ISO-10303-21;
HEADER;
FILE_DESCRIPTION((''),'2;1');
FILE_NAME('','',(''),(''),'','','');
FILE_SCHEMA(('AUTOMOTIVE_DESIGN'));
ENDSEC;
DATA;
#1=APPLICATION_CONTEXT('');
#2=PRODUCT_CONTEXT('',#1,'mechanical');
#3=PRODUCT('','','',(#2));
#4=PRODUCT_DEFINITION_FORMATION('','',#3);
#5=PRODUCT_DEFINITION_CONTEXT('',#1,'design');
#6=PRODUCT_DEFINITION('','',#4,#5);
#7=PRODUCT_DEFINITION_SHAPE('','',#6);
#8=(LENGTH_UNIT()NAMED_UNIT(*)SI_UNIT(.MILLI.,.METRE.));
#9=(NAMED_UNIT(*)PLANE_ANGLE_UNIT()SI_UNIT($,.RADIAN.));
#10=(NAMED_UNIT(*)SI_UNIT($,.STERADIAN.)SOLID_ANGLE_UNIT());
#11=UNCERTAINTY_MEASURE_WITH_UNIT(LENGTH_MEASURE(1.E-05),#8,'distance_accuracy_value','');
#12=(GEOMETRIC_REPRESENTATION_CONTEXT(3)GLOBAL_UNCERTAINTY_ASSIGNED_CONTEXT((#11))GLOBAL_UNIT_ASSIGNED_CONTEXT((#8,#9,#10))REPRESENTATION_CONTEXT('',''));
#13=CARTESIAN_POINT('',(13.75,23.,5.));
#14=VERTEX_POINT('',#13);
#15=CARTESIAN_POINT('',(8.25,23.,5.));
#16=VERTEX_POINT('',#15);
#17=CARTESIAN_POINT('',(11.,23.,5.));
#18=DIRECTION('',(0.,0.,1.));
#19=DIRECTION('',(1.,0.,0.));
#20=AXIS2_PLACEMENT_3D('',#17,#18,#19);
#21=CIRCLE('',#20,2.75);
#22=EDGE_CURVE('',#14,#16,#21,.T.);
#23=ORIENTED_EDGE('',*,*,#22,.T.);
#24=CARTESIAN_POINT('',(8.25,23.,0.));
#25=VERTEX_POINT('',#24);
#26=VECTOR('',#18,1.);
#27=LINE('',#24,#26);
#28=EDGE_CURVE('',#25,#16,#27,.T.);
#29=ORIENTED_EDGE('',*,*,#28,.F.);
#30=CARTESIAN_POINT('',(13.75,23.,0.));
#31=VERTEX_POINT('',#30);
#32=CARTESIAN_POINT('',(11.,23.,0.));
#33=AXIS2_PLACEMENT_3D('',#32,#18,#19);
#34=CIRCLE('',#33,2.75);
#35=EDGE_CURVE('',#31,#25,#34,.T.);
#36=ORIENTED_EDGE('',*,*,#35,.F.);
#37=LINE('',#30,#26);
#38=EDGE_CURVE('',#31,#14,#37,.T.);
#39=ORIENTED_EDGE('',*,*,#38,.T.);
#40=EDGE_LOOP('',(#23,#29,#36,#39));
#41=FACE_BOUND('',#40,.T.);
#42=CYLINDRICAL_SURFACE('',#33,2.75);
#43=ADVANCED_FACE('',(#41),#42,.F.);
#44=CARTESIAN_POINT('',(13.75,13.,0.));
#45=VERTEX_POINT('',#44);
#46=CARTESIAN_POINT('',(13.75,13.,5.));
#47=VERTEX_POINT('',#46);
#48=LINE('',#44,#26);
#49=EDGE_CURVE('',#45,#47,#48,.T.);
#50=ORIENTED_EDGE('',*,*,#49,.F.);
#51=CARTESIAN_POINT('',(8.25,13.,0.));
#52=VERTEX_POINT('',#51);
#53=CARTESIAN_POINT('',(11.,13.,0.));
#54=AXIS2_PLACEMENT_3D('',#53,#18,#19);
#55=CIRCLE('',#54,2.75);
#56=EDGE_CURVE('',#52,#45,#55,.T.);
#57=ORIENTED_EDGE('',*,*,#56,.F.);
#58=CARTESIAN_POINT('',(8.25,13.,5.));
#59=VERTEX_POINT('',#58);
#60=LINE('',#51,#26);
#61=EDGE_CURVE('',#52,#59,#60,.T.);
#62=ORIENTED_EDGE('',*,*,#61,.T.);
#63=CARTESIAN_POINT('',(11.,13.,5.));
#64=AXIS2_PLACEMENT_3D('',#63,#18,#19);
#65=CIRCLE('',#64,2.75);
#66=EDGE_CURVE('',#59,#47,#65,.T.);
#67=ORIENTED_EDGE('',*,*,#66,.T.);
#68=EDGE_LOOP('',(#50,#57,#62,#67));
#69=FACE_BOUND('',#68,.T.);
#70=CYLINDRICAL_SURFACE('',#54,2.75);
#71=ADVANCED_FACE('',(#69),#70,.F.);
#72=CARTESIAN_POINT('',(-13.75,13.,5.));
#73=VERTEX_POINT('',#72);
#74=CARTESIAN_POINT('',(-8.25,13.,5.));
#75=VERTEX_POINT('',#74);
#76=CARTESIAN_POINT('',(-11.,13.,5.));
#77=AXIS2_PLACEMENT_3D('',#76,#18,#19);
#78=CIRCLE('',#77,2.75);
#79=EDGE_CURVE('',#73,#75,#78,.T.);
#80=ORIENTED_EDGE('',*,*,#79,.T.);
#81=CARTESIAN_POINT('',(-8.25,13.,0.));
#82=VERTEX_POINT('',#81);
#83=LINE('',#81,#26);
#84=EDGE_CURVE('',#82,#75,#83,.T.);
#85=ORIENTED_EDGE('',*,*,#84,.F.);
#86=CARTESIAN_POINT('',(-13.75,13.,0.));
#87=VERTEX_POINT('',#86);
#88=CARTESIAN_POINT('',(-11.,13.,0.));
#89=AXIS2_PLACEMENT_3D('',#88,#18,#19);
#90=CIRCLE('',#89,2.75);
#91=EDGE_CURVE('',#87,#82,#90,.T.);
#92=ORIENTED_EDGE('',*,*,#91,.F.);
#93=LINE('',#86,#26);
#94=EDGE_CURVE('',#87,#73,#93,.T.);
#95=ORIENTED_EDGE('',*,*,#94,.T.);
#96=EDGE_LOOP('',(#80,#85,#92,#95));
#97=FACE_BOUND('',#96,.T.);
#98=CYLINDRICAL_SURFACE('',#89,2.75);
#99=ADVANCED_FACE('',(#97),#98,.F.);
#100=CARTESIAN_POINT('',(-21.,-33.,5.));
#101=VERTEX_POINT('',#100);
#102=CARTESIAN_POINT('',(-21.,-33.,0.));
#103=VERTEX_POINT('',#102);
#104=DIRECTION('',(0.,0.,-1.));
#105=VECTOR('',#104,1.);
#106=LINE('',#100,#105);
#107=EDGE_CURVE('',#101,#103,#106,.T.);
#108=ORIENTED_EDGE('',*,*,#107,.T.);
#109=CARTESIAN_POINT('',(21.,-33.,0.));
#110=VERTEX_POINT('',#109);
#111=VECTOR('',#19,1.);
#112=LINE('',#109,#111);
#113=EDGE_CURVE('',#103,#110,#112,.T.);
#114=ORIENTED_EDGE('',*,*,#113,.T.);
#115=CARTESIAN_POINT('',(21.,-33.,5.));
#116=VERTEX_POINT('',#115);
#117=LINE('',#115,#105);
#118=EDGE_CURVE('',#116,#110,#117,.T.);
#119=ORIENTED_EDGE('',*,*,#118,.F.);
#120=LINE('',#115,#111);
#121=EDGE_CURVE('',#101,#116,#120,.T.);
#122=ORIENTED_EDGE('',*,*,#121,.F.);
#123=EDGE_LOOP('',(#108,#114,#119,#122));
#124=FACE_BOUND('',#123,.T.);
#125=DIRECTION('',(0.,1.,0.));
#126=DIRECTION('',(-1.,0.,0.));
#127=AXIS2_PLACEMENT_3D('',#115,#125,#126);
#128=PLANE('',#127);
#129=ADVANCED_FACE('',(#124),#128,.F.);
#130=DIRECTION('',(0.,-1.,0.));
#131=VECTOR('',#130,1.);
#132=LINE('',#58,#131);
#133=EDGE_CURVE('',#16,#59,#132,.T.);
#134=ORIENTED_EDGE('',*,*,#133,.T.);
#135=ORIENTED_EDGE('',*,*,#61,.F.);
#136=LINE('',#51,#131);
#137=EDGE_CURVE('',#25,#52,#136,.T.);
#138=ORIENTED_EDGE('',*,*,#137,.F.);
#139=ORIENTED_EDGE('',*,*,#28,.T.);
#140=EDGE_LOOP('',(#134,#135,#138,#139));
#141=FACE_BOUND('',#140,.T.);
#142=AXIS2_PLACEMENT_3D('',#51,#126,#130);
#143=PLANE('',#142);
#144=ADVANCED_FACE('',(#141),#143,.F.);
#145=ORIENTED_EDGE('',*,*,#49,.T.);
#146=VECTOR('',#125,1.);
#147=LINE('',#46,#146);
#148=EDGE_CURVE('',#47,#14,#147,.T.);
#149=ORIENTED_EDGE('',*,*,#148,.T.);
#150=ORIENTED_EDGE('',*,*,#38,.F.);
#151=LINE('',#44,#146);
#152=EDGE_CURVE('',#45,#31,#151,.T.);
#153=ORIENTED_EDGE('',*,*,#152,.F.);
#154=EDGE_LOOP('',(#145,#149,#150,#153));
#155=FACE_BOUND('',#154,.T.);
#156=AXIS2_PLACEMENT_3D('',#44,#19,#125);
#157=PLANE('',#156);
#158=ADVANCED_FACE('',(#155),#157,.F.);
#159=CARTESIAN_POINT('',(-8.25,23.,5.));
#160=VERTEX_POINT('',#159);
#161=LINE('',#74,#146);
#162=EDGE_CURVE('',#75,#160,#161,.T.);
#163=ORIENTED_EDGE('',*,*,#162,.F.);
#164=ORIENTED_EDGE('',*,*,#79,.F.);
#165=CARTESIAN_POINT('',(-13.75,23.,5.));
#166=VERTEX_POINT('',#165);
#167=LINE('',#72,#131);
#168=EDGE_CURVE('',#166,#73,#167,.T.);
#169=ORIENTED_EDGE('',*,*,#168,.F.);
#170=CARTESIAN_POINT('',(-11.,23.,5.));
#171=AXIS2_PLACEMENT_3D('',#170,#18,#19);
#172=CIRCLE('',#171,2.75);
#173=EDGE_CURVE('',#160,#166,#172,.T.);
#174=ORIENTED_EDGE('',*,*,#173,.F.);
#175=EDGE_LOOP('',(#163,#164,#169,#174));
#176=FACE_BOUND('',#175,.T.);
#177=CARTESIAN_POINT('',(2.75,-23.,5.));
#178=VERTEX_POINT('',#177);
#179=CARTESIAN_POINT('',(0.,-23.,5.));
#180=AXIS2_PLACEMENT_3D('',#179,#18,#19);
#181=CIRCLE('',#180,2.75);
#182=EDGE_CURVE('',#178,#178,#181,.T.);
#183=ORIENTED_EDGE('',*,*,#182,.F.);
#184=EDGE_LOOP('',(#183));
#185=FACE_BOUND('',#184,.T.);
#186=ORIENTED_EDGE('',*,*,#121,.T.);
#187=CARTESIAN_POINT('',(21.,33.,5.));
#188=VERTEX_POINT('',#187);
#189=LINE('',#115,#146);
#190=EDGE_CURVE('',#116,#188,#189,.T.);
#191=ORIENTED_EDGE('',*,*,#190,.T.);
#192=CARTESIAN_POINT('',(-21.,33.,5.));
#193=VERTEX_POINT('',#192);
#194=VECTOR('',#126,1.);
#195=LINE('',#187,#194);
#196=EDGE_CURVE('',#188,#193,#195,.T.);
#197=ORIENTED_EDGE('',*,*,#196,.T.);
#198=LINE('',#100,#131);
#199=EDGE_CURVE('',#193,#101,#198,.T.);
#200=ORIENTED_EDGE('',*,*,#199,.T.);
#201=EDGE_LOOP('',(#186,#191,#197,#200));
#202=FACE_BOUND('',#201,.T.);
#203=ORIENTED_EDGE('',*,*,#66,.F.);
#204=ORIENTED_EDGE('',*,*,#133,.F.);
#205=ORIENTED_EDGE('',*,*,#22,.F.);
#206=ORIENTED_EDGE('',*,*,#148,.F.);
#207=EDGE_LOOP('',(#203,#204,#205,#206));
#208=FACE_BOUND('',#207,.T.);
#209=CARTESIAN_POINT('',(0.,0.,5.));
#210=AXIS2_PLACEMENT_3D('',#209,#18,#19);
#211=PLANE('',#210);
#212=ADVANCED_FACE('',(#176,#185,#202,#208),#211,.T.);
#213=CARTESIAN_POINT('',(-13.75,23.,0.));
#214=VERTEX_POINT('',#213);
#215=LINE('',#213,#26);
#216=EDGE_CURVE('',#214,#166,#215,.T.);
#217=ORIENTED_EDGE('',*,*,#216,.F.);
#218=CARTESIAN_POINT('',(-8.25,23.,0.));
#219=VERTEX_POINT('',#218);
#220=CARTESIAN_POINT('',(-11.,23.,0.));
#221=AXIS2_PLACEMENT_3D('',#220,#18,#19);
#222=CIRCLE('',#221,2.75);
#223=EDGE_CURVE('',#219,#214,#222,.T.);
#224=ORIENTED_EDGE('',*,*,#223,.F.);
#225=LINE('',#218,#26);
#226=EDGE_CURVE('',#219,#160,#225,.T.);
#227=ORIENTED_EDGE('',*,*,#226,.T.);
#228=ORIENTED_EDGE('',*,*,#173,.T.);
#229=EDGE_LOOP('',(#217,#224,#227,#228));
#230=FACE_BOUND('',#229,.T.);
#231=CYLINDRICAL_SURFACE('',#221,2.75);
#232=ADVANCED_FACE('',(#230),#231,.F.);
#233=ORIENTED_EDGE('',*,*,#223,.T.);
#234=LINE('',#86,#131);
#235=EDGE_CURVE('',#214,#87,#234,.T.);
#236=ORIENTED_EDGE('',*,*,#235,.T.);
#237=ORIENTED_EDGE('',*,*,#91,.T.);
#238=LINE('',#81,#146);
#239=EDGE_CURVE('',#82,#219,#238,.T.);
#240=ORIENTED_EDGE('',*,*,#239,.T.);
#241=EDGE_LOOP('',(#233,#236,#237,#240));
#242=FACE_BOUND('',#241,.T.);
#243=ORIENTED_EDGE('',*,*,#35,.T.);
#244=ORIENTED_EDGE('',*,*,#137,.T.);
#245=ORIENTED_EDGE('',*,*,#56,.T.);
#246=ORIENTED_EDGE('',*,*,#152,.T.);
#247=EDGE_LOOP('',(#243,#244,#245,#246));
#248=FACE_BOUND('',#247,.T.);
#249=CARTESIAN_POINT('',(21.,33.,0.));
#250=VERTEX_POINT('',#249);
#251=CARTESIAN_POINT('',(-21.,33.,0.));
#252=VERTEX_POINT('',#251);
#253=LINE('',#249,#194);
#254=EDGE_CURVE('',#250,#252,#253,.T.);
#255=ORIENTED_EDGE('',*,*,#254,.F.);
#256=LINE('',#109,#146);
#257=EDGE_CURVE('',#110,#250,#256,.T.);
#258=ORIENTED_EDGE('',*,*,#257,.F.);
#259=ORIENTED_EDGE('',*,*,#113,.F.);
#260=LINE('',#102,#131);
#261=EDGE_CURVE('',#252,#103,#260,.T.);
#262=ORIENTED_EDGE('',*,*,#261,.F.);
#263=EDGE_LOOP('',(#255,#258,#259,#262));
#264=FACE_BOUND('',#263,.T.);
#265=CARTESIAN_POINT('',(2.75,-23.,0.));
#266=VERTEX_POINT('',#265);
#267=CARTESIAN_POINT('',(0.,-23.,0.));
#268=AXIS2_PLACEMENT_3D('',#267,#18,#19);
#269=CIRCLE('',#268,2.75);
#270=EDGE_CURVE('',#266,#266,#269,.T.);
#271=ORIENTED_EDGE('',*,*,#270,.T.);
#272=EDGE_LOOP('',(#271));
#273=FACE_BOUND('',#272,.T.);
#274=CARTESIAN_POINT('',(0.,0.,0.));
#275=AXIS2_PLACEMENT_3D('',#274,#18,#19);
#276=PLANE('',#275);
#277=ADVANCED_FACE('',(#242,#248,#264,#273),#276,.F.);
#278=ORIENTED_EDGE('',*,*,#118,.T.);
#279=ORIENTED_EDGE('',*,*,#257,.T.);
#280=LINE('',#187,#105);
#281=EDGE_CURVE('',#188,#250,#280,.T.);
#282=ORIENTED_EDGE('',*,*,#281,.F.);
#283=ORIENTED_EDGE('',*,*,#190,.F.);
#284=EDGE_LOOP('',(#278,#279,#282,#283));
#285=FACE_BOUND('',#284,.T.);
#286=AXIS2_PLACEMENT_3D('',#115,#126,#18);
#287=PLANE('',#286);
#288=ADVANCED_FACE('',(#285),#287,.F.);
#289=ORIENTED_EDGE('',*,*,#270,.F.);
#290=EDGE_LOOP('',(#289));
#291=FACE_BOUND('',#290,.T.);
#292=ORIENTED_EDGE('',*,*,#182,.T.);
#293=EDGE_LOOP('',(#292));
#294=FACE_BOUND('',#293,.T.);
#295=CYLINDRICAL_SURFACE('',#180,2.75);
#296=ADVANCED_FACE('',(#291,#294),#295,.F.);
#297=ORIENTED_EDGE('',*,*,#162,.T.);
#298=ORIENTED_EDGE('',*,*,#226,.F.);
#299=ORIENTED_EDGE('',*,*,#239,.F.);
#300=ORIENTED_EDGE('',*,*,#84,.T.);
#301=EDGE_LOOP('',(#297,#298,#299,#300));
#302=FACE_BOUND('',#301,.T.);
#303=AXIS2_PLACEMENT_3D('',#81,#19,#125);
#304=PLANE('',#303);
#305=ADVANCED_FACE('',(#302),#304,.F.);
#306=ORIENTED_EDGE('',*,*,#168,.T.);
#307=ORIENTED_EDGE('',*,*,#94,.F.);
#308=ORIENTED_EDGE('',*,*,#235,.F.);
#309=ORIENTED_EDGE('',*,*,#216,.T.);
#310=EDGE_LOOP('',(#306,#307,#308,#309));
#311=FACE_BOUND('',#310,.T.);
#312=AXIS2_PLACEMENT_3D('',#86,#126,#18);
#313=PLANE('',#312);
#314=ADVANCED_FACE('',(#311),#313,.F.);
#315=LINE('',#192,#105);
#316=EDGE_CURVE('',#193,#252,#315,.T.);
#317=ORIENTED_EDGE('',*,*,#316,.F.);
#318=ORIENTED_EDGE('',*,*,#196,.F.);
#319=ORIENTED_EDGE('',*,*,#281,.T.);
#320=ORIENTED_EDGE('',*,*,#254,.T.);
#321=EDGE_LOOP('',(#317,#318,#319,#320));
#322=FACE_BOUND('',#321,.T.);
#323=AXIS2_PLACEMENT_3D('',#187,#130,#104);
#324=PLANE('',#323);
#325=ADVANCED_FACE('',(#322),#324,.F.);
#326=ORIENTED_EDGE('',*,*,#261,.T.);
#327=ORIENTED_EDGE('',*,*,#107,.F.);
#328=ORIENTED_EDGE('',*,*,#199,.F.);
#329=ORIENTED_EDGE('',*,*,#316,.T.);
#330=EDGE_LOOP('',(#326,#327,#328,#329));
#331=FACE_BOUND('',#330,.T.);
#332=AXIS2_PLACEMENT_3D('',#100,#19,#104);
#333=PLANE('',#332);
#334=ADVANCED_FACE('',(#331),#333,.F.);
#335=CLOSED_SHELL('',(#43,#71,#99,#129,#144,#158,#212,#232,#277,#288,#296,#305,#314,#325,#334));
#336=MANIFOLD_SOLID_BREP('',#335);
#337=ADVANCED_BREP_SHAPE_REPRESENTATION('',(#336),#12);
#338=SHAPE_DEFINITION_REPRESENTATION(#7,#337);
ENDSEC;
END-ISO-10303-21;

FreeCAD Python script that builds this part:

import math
import FreeCAD as App
import Part
import Sketcher
from FreeCAD import Vector
Q = App.Units.Quantity


def add_polygon(sketch, points):
    """Adds a closed chain of lines whose ends are joined by coincident constraints."""
    first, n = sketch.GeometryCount, len(points)
    for a, b in zip(points, points[1:] + points[:1]):
        sketch.addGeometry(Part.LineSegment(App.Vector(*a, 0), App.Vector(*b, 0)), False)
    for i in range(n):
        sketch.addConstraint(Sketcher.Constraint("Coincident", first + i, 2, first + (i + 1) % n, 1))

doc = App.newDocument("Part")
body = doc.addObject("PartDesign::Body", "Body")

# Sketch on XY plane
sketch1 = body.newObject("Sketcher::SketchObject", "Sketch")
sketch1.AttachmentSupport = (doc.getObject("XY_Plane"), [""])
sketch1.MapMode = "FlatFace"
add_polygon(sketch1, [(-21, 33), (-21, -33), (21, -33), (21, 33)])  # lines 0-3
sketch1.addConstraint([
    Sketcher.Constraint("Vertical", 0),
    Sketcher.Constraint("Horizontal", 1),
    Sketcher.Constraint("Vertical", 2),
    Sketcher.Constraint("Horizontal", 3),
    Sketcher.Constraint("Symmetric", 0, 2, 2, 2, -1, 1),
    Sketcher.Constraint("DistanceX", 1, 1, 1, 2, Q("42 mm")),
    Sketcher.Constraint("DistanceY", 0, 2, 0, 1, Q("66 mm")),
])
pad1 = body.newObject("PartDesign::Pad", "Pad")
pad1.Profile = sketch1
pad1.Length = 5

# Sketch on XY plane
sketch2 = body.newObject("Sketcher::SketchObject", "Sketch001")
sketch2.AttachmentSupport = (doc.getObject("XY_Plane"), [""])
sketch2.MapMode = "FlatFace"
sketch2.AttachmentOffset = App.Placement(Vector(0, 0, 5), App.Rotation())
sketch2.addGeometry([
    Part.Circle(Vector(11, 18, 0), Vector(0, 0, 1), 2.8),
    Part.Circle(Vector(-11, 18, 0), Vector(0, 0, 1), 2.8),
    Part.Circle(Vector(0, -23, 0), Vector(0, 0, 1), 2.8),
], False)
sketch2.addConstraint([
    Sketcher.Constraint("Equal", 0, 1),
    Sketcher.Constraint("Equal", 1, 2),
    Sketcher.Constraint("Symmetric", 0, 3, 1, 3, -2),
    Sketcher.Constraint("PointOnObject", 2, 3, -2),
    Sketcher.Constraint("Diameter", 0, Q("5.5 mm")),
    Sketcher.Constraint("DistanceX", -1, 1, 0, 3, Q("11 mm")),
    Sketcher.Constraint("DistanceY", -1, 1, 0, 3, Q("18 mm")),
    Sketcher.Constraint("DistanceY", 2, 3, -1, 1, Q("23 mm")),
])
doc.recompute()
hole = body.newObject("PartDesign::Hole", "Hole")
hole.Profile = sketch2
hole.ThreadType = "None"
hole.Diameter = 5.5
hole.DepthType = "ThroughAll"

# Sketch on XY plane
sketch3 = body.newObject("Sketcher::SketchObject", "Sketch002")
sketch3.AttachmentSupport = (doc.getObject("XY_Plane"), [""])
sketch3.MapMode = "FlatFace"
sketch3.AttachmentOffset = App.Placement(Vector(0, 0, 5), App.Rotation())
sketch3.addGeometry([
    Part.LineSegment(Vector(-13.8, 23, 0), Vector(-13.8, 13, 0)),  # 0
    Part.ArcOfCircle(Part.Circle(Vector(-11, 13, 0), Vector(0, 0, 1), 2.8), math.radians(180), math.radians(360)),  # 1
    Part.LineSegment(Vector(-8.2, 13, 0), Vector(-8.2, 23, 0)),  # 2
    Part.ArcOfCircle(Part.Circle(Vector(-11, 23, 0), Vector(0, 0, 1), 2.8), math.radians(0), math.radians(180)),  # 3
    Part.LineSegment(Vector(8.2, 23, 0), Vector(8.2, 13, 0)),  # 4
    Part.ArcOfCircle(Part.Circle(Vector(11, 13, 0), Vector(0, 0, 1), 2.8), math.radians(180), math.radians(360)),  # 5
    Part.LineSegment(Vector(13.8, 13, 0), Vector(13.8, 23, 0)),  # 6
    Part.ArcOfCircle(Part.Circle(Vector(11, 23, 0), Vector(0, 0, 1), 2.8), math.radians(0), math.radians(180)),  # 7
], False)
sketch3.addConstraint([
    Sketcher.Constraint("Tangent", 0, 2, 1, 1),
    Sketcher.Constraint("Tangent", 1, 2, 2, 1),
    Sketcher.Constraint("Tangent", 2, 2, 3, 1),
    Sketcher.Constraint("Tangent", 3, 2, 0, 1),
    Sketcher.Constraint("Tangent", 4, 2, 5, 1),
    Sketcher.Constraint("Tangent", 5, 2, 6, 1),
    Sketcher.Constraint("Tangent", 6, 2, 7, 1),
    Sketcher.Constraint("Tangent", 7, 2, 4, 1),
    Sketcher.Constraint("Vertical", 0),
    Sketcher.Constraint("Vertical", 2),
    Sketcher.Constraint("Vertical", 4),
    Sketcher.Constraint("Vertical", 6),
    Sketcher.Constraint("Equal", 3, 5),
    Sketcher.Constraint("Symmetric", 1, 3, 5, 3, -2),
    Sketcher.Constraint("Horizontal", 3, 3, 7, 3),
    Sketcher.Constraint("DistanceY", 0, 2, 0, 1, Q("10 mm")),
    Sketcher.Constraint("Radius", 1, Q("2.75 mm")),
    Sketcher.Constraint("DistanceX", 1, 3, -1, 1, Q("11 mm")),
    Sketcher.Constraint("DistanceY", -1, 1, 1, 3, Q("13 mm")),
])
pocket1 = body.newObject("PartDesign::Pocket", "Pocket")
pocket1.Profile = sketch3
pocket1.Type = "ThroughAll"

doc.recompute()
